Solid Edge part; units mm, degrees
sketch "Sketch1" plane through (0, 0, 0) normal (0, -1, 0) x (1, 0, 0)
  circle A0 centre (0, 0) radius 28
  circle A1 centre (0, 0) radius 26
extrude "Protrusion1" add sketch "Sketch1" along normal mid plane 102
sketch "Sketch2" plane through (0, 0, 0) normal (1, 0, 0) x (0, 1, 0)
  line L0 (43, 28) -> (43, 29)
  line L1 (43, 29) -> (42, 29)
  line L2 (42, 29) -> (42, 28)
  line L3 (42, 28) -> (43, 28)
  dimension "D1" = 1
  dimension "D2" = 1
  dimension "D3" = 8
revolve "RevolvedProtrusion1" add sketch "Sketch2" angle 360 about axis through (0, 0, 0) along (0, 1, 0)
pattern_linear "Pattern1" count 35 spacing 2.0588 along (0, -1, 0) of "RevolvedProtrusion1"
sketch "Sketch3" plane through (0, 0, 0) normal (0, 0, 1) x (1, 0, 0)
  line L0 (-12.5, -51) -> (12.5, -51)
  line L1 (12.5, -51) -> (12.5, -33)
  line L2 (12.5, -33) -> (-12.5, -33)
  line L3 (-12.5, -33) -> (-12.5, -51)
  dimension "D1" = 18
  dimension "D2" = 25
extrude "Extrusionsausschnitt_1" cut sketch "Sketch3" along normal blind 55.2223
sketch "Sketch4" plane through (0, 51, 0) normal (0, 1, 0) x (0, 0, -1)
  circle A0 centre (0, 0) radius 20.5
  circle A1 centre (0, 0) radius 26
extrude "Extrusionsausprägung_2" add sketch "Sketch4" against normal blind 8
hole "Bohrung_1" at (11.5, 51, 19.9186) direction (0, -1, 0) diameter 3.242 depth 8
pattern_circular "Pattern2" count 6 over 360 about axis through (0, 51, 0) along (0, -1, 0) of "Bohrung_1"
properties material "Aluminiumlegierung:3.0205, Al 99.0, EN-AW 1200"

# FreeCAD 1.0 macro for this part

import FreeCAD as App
import Part
import Sketcher

V = App.Vector
Q = App.Units.Quantity

doc = App.newDocument("Part")
params = doc.addObject("Spreadsheet::Sheet", "Params")
for row, (alias, value) in enumerate([
    ("sketch1_diameter", "56 mm"),
    ("sketch1_diameter2", "52 mm"),
    ("pad1_length", "102 mm"),
    ("sketch2_width", "1 mm"),
    ("revolution_angle", "360 deg"),
    ("linearpattern_pitch", "2.0588 mm"),
    ("sketch3_height", "18 mm"),
    ("pocket1_length", "55.2223 mm"),
    ("sketch4_diameter", "52 mm"),
    ("sketch4_diameter2", "41 mm"),
    ("pad2_length", "8 mm"),
    ("hole_diameter", "3.242 mm"),
    ("hole_depth", "8 mm"),
], start=1):
    params.set(f"A{row}", alias)
    params.set(f"B{row}", "=" + value)
    params.setAlias(f"B{row}", alias)

body = doc.addObject("PartDesign::Body", "Body")

# Sketch on XZ plane
sketch1 = body.newObject("Sketcher::SketchObject", "Sketch")
sketch1.AttachmentSupport = (doc.getObject("XZ_Plane"), [""])
sketch1.MapMode = "FlatFace"
sketch1.addGeometry([
    Part.Circle(V(0, 0, 0), V(0, 0, 1), 28),
    Part.Circle(V(0, 0, 0), V(0, 0, 1), 26),
], False)
sketch1.addConstraint([
    Sketcher.Constraint("Coincident", 0, 3, -1, 1),
    Sketcher.Constraint("Coincident", 1, 3, -1, 1),
    Sketcher.Constraint("Diameter", 0, Q("56 mm")),
    Sketcher.Constraint("Diameter", 1, Q("52 mm")),
])
sketch1.setExpression("Constraints[2]", "Params.sketch1_diameter")
sketch1.setExpression("Constraints[3]", "Params.sketch1_diameter2")
pad1 = body.newObject("PartDesign::Pad", "Pad")
pad1.Profile = sketch1
pad1.setExpression("Length", "Params.pad1_length")
pad1.Midplane = True

# Sketch on YZ plane
sketch2 = body.newObject("Sketcher::SketchObject", "Sketch001")
sketch2.AttachmentSupport = (doc.getObject("YZ_Plane"), [""])
sketch2.MapMode = "FlatFace"
sketch2.addGeometry([
    Part.LineSegment(V(42, 28, 0), V(43, 28, 0)),
    Part.LineSegment(V(43, 28, 0), V(43, 29, 0)),
    Part.LineSegment(V(43, 29, 0), V(42, 29, 0)),
    Part.LineSegment(V(42, 29, 0), V(42, 28, 0)),
], False)
sketch2.addConstraint([
    Sketcher.Constraint("Coincident", 0, 2, 1, 1),
    Sketcher.Constraint("Coincident", 1, 2, 2, 1),
    Sketcher.Constraint("Coincident", 2, 2, 3, 1),
    Sketcher.Constraint("Coincident", 3, 2, 0, 1),
    Sketcher.Constraint("Horizontal", 0),
    Sketcher.Constraint("Vertical", 1),
    Sketcher.Constraint("Horizontal", 2),
    Sketcher.Constraint("Vertical", 3),
    Sketcher.Constraint("Equal", 2, 1),
    Sketcher.Constraint("DistanceX", -1, 1, 0, 2, Q("43 mm")),
    Sketcher.Constraint("DistanceX", 0, 1, 0, 2, Q("1 mm")),
    Sketcher.Constraint("DistanceY", -1, 1, 0, 2, Q("28 mm")),
])
sketch2.setExpression("Constraints[10]", "Params.sketch2_width")
revolution = body.newObject("PartDesign::Revolution", "Revolution")
revolution.Profile = sketch2
revolution.ReferenceAxis = (sketch2, ["H_Axis"])
revolution.setExpression("Angle", "Params.revolution_angle")
doc.recompute()

linearpattern = body.newObject("PartDesign::LinearPattern", "LinearPattern")
linearpattern.Originals = [revolution]
linearpattern.Direction = (doc.getObject("Y_Axis"), [""])
linearpattern.Mode = "offset"
linearpattern.setExpression("Offset", "Params.linearpattern_pitch")
linearpattern.Occurrences = 35
linearpattern.Reversed = True
body.Tip = linearpattern

# Sketch on XY plane
sketch3 = body.newObject("Sketcher::SketchObject", "Sketch002")
sketch3.AttachmentSupport = (doc.getObject("XY_Plane"), [""])
sketch3.MapMode = "FlatFace"
sketch3.addGeometry([
    Part.LineSegment(V(-12, -33, 0), V(-12, -51, 0)),
    Part.LineSegment(V(-12, -51, 0), V(12, -51, 0)),
    Part.LineSegment(V(12, -51, 0), V(12, -33, 0)),
    Part.LineSegment(V(12, -33, 0), V(-12, -33, 0)),
], False)
sketch3.addConstraint([
    Sketcher.Constraint("Coincident", 0, 2, 1, 1),
    Sketcher.Constraint("Coincident", 1, 2, 2, 1),
    Sketcher.Constraint("Coincident", 2, 2, 3, 1),
    Sketcher.Constraint("Coincident", 3, 2, 0, 1),
    Sketcher.Constraint("Vertical", 0),
    Sketcher.Constraint("Horizontal", 1),
    Sketcher.Constraint("Vertical", 2),
    Sketcher.Constraint("Horizontal", 3),
    Sketcher.Constraint("DistanceX", 0, 2, -1, 1, Q("12.5 mm")),
    Sketcher.Constraint("DistanceX", -1, 1, 1, 2, Q("12.5 mm")),
    Sketcher.Constraint("DistanceY", 0, 2, 0, 1, Q("18 mm")),
    Sketcher.Constraint("DistanceY", 0, 2, -1, 1, Q("51 mm")),
])
sketch3.setExpression("Constraints[10]", "Params.sketch3_height")
pocket1 = body.newObject("PartDesign::Pocket", "Pocket")
pocket1.Profile = sketch3
pocket1.setExpression("Length", "Params.pocket1_length")
pocket1.Reversed = True

# Sketch on XZ plane
sketch4 = body.newObject("Sketcher::SketchObject", "Sketch003")
sketch4.AttachmentSupport = (doc.getObject("XZ_Plane"), [""])
sketch4.MapMode = "FlatFace"
sketch4.AttachmentOffset = App.Placement(V(0, 0, -51), App.Rotation())
sketch4.addGeometry([
    Part.Circle(V(0, 0, 0), V(0, 0, 1), 26),
    Part.Circle(V(0, 0, 0), V(0, 0, 1), 20),
], False)
sketch4.addConstraint([
    Sketcher.Constraint("Coincident", 0, 3, -1, 1),
    Sketcher.Constraint("Coincident", 1, 3, -1, 1),
    Sketcher.Constraint("Diameter", 0, Q("52 mm")),
    Sketcher.Constraint("Diameter", 1, Q("41 mm")),
])
sketch4.setExpression("Constraints[2]", "Params.sketch4_diameter")
sketch4.setExpression("Constraints[3]", "Params.sketch4_diameter2")
pad2 = body.newObject("PartDesign::Pad", "Pad001")
pad2.Profile = sketch4
pad2.setExpression("Length", "Params.pad2_length")

# Sketch on XZ plane
sketch5 = body.newObject("Sketcher::SketchObject", "Sketch004")
sketch5.AttachmentSupport = (doc.getObject("XZ_Plane"), [""])
sketch5.MapMode = "FlatFace"
sketch5.AttachmentOffset = App.Placement(V(0, 0, -51), App.Rotation())
sketch5.addGeometry(Part.Circle(V(11.5, 19.9, 0), V(0, 0, 1), 1.6), False)
sketch5.addConstraint([
    Sketcher.Constraint("Diameter", 0, Q("3.242 mm")),
    Sketcher.Constraint("DistanceX", -1, 1, 0, 3, Q("11.5 mm")),
    Sketcher.Constraint("DistanceY", -1, 1, 0, 3, Q("19.9186 mm")),
])
doc.recompute()
hole = body.newObject("PartDesign::Hole", "Hole")
hole.Profile = sketch5
hole.ThreadType = "None"
hole.setExpression("Diameter", "Params.hole_diameter")
hole.DepthType = "Dimension"
hole.setExpression("Depth", "Params.hole_depth")
hole.DrillPoint = "Flat"
hole.Reversed = True
doc.recompute()

polarpattern = body.newObject("PartDesign::PolarPattern", "PolarPattern")
polarpattern.Originals = [hole]
polarpattern.Axis = (doc.getObject("Y_Axis"), [""])
polarpattern.Angle = 360
polarpattern.Occurrences = 6
body.Tip = polarpattern

doc.recompute()
